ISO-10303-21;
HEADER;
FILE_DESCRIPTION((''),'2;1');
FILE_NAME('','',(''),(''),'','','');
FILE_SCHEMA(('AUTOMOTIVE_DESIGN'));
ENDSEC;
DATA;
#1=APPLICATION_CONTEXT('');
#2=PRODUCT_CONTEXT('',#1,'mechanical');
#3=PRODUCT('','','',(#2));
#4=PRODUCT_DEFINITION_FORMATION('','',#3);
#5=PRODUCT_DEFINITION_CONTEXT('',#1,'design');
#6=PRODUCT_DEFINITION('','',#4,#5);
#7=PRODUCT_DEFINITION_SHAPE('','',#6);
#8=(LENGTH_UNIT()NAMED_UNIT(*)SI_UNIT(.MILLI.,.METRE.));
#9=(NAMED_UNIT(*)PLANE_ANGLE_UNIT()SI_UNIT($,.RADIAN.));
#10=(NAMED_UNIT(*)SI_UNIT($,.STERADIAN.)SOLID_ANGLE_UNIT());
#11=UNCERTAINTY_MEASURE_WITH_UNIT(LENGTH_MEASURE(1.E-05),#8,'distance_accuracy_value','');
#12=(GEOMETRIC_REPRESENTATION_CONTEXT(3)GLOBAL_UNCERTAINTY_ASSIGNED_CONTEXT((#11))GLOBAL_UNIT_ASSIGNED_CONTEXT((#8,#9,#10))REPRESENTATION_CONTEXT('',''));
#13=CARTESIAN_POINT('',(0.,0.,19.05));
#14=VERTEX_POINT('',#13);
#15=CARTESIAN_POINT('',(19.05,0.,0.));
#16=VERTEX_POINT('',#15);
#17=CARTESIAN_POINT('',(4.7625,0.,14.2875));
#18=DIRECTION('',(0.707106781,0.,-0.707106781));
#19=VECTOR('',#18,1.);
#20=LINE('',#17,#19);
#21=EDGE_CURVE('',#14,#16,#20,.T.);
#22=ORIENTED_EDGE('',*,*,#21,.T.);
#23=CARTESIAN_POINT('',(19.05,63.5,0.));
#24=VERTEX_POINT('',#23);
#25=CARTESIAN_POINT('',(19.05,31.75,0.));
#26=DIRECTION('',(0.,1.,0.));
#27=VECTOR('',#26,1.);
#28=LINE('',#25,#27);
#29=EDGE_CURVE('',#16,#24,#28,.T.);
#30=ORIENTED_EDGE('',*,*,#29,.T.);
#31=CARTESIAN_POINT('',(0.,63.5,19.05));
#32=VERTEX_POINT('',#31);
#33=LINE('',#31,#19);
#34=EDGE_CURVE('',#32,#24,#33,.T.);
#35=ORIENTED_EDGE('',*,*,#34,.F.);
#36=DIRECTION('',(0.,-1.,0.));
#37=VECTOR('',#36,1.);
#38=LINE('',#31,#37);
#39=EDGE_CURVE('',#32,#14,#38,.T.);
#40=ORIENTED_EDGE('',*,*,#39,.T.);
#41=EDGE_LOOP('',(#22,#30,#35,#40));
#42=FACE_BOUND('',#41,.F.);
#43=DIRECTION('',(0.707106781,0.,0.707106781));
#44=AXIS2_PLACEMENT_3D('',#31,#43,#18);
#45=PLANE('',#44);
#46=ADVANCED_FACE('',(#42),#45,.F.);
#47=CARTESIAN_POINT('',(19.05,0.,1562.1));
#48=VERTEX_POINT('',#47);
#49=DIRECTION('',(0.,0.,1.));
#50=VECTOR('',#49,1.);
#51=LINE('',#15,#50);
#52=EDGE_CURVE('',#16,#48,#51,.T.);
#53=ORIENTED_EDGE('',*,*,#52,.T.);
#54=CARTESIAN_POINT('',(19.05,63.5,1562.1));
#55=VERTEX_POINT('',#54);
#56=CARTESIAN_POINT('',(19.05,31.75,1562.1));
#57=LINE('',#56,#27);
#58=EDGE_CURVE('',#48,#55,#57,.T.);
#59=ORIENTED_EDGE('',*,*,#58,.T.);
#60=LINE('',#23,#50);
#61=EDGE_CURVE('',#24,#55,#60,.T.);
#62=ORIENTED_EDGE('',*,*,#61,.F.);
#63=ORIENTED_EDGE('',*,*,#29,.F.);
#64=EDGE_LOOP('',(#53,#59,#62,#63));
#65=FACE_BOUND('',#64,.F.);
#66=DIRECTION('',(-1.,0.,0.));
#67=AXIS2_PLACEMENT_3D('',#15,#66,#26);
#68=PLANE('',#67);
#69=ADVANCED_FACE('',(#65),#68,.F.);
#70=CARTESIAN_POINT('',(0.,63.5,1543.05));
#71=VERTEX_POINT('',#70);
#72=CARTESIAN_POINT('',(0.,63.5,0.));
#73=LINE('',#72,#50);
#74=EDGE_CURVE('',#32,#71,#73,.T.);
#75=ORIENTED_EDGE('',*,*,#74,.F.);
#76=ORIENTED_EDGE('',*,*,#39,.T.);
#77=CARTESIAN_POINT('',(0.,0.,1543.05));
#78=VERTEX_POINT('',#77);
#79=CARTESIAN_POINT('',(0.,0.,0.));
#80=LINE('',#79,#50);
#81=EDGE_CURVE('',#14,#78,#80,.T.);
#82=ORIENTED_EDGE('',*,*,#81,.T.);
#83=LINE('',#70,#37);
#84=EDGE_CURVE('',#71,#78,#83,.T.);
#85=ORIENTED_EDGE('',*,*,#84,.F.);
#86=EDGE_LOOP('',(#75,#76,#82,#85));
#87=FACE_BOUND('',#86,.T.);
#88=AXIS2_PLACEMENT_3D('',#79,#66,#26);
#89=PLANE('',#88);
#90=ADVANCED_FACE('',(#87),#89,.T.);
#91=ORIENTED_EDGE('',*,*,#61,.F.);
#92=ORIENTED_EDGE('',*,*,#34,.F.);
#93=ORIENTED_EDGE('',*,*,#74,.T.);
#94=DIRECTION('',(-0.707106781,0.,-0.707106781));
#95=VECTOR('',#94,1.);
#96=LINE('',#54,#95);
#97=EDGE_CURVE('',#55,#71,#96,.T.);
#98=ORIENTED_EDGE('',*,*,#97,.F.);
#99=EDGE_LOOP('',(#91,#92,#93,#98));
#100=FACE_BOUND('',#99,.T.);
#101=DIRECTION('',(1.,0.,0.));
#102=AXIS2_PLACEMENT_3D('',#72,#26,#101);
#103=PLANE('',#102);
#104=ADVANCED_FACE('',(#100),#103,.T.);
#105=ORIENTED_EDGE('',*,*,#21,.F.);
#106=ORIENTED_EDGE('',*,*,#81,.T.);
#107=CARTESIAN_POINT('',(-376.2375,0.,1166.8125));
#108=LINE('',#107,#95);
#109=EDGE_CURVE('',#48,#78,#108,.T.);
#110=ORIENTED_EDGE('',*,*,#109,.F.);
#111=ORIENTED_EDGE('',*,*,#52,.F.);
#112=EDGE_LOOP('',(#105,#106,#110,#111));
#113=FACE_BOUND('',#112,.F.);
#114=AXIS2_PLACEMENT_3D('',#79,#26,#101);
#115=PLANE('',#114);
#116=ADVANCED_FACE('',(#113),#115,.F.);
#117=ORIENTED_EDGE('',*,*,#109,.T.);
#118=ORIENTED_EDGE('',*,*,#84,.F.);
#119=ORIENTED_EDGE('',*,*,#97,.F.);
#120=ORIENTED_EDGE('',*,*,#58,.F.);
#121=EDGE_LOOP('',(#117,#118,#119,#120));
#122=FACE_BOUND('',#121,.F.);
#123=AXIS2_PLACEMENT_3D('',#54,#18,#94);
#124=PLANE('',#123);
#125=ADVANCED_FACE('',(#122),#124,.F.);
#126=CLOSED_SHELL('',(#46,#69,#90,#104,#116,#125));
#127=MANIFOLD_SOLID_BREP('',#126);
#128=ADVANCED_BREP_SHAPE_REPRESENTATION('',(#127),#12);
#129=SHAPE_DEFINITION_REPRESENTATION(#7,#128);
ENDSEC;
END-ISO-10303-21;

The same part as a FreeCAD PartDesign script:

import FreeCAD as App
import Part
import Sketcher
from FreeCAD import Vector
Q = App.Units.Quantity


def add_polygon(sketch, points):
    """Adds a closed chain of lines whose ends are joined by coincident constraints."""
    first, n = sketch.GeometryCount, len(points)
    for a, b in zip(points, points[1:] + points[:1]):
        sketch.addGeometry(Part.LineSegment(App.Vector(*a, 0), App.Vector(*b, 0)), False)
    for i in range(n):
        sketch.addConstraint(Sketcher.Constraint("Coincident", first + i, 2, first + (i + 1) % n, 1))

doc = App.newDocument("Part")
body = doc.addObject("PartDesign::Body", "Body")

# Sketch on XY plane
sketch1 = body.newObject("Sketcher::SketchObject", "Sketch")
sketch1.AttachmentSupport = (doc.getObject("XY_Plane"), [""])
sketch1.MapMode = "FlatFace"
add_polygon(sketch1, [(0, 64), (0, 0), (19, 0), (19, 64)])  # lines 0-3
sketch1.addConstraint(Sketcher.Constraint("Vertical", 0))
sketch1.addConstraint(Sketcher.Constraint("Horizontal", 1))
sketch1.addConstraint(Sketcher.Constraint("Vertical", 2))
sketch1.addConstraint(Sketcher.Constraint("Horizontal", 3))
sketch1.addConstraint(Sketcher.Constraint("Coincident", 0, 2, -1, 1))
sketch1.addConstraint(Sketcher.Constraint("DistanceY", 0, 2, 0, 1, Q("2.5 in")))
sketch1.addConstraint(Sketcher.Constraint("DistanceX", 1, 1, 1, 2, Q("0.75 in")))
pad1 = body.newObject("PartDesign::Pad", "Pad")
pad1.Profile = sketch1
pad1.Length = Q("61.5 in")

# Sketch on XZ plane
sketch2 = body.newObject("Sketcher::SketchObject", "Sketch001")
sketch2.AttachmentSupport = (doc.getObject("XZ_Plane"), [""])
sketch2.MapMode = "FlatFace"
sketch2.AttachmentOffset = App.Placement(Vector(0, 0, -2.5 * 25.4), App.Rotation())
add_polygon(sketch2, [(0, 19), (19, 0), (0, 0)])  # lines 0-2
sketch2.addConstraint(Sketcher.Constraint("Horizontal", 1))
sketch2.addConstraint(Sketcher.Constraint("Vertical", 2))
sketch2.addConstraint(Sketcher.Constraint("Coincident", 1, 2, -1, 1))
sketch2.addConstraint(Sketcher.Constraint("Equal", 1, 2))
sketch2.addConstraint(Sketcher.Constraint("DistanceX", 1, 2, 1, 1, Q("0.75 in")))
pocket1 = body.newObject("PartDesign::Pocket", "Pocket")
pocket1.Profile = sketch2
pocket1.Type = "ThroughAll"
pocket1.Reversed = True

# Sketch on XZ plane
sketch3 = body.newObject("Sketcher::SketchObject", "Sketch002")
sketch3.AttachmentSupport = (doc.getObject("XZ_Plane"), [""])
sketch3.MapMode = "FlatFace"
sketch3.AttachmentOffset = App.Placement(Vector(0, 0, -2.5 * 25.4), App.Rotation())
add_polygon(sketch3, [(0, 1562), (19, 1562), (0, 1543)])  # lines 0-2
sketch3.addConstraint(Sketcher.Constraint("Horizontal", 0))
sketch3.addConstraint(Sketcher.Constraint("Vertical", 2))
sketch3.addConstraint(Sketcher.Constraint("PointOnObject", 1, 2, -2))
sketch3.addConstraint(Sketcher.Constraint("Equal", 0, 2))
sketch3.addConstraint(Sketcher.Constraint("DistanceX", 0, 1, 0, 2, Q("0.75 in")))
sketch3.addConstraint(Sketcher.Constraint("DistanceY", -1, 1, 0, 2, Q("61.5 in")))
pocket2 = body.newObject("PartDesign::Pocket", "Pocket001")
pocket2.Profile = sketch3
pocket2.Type = "ThroughAll"
pocket2.Reversed = True

doc.recompute()
